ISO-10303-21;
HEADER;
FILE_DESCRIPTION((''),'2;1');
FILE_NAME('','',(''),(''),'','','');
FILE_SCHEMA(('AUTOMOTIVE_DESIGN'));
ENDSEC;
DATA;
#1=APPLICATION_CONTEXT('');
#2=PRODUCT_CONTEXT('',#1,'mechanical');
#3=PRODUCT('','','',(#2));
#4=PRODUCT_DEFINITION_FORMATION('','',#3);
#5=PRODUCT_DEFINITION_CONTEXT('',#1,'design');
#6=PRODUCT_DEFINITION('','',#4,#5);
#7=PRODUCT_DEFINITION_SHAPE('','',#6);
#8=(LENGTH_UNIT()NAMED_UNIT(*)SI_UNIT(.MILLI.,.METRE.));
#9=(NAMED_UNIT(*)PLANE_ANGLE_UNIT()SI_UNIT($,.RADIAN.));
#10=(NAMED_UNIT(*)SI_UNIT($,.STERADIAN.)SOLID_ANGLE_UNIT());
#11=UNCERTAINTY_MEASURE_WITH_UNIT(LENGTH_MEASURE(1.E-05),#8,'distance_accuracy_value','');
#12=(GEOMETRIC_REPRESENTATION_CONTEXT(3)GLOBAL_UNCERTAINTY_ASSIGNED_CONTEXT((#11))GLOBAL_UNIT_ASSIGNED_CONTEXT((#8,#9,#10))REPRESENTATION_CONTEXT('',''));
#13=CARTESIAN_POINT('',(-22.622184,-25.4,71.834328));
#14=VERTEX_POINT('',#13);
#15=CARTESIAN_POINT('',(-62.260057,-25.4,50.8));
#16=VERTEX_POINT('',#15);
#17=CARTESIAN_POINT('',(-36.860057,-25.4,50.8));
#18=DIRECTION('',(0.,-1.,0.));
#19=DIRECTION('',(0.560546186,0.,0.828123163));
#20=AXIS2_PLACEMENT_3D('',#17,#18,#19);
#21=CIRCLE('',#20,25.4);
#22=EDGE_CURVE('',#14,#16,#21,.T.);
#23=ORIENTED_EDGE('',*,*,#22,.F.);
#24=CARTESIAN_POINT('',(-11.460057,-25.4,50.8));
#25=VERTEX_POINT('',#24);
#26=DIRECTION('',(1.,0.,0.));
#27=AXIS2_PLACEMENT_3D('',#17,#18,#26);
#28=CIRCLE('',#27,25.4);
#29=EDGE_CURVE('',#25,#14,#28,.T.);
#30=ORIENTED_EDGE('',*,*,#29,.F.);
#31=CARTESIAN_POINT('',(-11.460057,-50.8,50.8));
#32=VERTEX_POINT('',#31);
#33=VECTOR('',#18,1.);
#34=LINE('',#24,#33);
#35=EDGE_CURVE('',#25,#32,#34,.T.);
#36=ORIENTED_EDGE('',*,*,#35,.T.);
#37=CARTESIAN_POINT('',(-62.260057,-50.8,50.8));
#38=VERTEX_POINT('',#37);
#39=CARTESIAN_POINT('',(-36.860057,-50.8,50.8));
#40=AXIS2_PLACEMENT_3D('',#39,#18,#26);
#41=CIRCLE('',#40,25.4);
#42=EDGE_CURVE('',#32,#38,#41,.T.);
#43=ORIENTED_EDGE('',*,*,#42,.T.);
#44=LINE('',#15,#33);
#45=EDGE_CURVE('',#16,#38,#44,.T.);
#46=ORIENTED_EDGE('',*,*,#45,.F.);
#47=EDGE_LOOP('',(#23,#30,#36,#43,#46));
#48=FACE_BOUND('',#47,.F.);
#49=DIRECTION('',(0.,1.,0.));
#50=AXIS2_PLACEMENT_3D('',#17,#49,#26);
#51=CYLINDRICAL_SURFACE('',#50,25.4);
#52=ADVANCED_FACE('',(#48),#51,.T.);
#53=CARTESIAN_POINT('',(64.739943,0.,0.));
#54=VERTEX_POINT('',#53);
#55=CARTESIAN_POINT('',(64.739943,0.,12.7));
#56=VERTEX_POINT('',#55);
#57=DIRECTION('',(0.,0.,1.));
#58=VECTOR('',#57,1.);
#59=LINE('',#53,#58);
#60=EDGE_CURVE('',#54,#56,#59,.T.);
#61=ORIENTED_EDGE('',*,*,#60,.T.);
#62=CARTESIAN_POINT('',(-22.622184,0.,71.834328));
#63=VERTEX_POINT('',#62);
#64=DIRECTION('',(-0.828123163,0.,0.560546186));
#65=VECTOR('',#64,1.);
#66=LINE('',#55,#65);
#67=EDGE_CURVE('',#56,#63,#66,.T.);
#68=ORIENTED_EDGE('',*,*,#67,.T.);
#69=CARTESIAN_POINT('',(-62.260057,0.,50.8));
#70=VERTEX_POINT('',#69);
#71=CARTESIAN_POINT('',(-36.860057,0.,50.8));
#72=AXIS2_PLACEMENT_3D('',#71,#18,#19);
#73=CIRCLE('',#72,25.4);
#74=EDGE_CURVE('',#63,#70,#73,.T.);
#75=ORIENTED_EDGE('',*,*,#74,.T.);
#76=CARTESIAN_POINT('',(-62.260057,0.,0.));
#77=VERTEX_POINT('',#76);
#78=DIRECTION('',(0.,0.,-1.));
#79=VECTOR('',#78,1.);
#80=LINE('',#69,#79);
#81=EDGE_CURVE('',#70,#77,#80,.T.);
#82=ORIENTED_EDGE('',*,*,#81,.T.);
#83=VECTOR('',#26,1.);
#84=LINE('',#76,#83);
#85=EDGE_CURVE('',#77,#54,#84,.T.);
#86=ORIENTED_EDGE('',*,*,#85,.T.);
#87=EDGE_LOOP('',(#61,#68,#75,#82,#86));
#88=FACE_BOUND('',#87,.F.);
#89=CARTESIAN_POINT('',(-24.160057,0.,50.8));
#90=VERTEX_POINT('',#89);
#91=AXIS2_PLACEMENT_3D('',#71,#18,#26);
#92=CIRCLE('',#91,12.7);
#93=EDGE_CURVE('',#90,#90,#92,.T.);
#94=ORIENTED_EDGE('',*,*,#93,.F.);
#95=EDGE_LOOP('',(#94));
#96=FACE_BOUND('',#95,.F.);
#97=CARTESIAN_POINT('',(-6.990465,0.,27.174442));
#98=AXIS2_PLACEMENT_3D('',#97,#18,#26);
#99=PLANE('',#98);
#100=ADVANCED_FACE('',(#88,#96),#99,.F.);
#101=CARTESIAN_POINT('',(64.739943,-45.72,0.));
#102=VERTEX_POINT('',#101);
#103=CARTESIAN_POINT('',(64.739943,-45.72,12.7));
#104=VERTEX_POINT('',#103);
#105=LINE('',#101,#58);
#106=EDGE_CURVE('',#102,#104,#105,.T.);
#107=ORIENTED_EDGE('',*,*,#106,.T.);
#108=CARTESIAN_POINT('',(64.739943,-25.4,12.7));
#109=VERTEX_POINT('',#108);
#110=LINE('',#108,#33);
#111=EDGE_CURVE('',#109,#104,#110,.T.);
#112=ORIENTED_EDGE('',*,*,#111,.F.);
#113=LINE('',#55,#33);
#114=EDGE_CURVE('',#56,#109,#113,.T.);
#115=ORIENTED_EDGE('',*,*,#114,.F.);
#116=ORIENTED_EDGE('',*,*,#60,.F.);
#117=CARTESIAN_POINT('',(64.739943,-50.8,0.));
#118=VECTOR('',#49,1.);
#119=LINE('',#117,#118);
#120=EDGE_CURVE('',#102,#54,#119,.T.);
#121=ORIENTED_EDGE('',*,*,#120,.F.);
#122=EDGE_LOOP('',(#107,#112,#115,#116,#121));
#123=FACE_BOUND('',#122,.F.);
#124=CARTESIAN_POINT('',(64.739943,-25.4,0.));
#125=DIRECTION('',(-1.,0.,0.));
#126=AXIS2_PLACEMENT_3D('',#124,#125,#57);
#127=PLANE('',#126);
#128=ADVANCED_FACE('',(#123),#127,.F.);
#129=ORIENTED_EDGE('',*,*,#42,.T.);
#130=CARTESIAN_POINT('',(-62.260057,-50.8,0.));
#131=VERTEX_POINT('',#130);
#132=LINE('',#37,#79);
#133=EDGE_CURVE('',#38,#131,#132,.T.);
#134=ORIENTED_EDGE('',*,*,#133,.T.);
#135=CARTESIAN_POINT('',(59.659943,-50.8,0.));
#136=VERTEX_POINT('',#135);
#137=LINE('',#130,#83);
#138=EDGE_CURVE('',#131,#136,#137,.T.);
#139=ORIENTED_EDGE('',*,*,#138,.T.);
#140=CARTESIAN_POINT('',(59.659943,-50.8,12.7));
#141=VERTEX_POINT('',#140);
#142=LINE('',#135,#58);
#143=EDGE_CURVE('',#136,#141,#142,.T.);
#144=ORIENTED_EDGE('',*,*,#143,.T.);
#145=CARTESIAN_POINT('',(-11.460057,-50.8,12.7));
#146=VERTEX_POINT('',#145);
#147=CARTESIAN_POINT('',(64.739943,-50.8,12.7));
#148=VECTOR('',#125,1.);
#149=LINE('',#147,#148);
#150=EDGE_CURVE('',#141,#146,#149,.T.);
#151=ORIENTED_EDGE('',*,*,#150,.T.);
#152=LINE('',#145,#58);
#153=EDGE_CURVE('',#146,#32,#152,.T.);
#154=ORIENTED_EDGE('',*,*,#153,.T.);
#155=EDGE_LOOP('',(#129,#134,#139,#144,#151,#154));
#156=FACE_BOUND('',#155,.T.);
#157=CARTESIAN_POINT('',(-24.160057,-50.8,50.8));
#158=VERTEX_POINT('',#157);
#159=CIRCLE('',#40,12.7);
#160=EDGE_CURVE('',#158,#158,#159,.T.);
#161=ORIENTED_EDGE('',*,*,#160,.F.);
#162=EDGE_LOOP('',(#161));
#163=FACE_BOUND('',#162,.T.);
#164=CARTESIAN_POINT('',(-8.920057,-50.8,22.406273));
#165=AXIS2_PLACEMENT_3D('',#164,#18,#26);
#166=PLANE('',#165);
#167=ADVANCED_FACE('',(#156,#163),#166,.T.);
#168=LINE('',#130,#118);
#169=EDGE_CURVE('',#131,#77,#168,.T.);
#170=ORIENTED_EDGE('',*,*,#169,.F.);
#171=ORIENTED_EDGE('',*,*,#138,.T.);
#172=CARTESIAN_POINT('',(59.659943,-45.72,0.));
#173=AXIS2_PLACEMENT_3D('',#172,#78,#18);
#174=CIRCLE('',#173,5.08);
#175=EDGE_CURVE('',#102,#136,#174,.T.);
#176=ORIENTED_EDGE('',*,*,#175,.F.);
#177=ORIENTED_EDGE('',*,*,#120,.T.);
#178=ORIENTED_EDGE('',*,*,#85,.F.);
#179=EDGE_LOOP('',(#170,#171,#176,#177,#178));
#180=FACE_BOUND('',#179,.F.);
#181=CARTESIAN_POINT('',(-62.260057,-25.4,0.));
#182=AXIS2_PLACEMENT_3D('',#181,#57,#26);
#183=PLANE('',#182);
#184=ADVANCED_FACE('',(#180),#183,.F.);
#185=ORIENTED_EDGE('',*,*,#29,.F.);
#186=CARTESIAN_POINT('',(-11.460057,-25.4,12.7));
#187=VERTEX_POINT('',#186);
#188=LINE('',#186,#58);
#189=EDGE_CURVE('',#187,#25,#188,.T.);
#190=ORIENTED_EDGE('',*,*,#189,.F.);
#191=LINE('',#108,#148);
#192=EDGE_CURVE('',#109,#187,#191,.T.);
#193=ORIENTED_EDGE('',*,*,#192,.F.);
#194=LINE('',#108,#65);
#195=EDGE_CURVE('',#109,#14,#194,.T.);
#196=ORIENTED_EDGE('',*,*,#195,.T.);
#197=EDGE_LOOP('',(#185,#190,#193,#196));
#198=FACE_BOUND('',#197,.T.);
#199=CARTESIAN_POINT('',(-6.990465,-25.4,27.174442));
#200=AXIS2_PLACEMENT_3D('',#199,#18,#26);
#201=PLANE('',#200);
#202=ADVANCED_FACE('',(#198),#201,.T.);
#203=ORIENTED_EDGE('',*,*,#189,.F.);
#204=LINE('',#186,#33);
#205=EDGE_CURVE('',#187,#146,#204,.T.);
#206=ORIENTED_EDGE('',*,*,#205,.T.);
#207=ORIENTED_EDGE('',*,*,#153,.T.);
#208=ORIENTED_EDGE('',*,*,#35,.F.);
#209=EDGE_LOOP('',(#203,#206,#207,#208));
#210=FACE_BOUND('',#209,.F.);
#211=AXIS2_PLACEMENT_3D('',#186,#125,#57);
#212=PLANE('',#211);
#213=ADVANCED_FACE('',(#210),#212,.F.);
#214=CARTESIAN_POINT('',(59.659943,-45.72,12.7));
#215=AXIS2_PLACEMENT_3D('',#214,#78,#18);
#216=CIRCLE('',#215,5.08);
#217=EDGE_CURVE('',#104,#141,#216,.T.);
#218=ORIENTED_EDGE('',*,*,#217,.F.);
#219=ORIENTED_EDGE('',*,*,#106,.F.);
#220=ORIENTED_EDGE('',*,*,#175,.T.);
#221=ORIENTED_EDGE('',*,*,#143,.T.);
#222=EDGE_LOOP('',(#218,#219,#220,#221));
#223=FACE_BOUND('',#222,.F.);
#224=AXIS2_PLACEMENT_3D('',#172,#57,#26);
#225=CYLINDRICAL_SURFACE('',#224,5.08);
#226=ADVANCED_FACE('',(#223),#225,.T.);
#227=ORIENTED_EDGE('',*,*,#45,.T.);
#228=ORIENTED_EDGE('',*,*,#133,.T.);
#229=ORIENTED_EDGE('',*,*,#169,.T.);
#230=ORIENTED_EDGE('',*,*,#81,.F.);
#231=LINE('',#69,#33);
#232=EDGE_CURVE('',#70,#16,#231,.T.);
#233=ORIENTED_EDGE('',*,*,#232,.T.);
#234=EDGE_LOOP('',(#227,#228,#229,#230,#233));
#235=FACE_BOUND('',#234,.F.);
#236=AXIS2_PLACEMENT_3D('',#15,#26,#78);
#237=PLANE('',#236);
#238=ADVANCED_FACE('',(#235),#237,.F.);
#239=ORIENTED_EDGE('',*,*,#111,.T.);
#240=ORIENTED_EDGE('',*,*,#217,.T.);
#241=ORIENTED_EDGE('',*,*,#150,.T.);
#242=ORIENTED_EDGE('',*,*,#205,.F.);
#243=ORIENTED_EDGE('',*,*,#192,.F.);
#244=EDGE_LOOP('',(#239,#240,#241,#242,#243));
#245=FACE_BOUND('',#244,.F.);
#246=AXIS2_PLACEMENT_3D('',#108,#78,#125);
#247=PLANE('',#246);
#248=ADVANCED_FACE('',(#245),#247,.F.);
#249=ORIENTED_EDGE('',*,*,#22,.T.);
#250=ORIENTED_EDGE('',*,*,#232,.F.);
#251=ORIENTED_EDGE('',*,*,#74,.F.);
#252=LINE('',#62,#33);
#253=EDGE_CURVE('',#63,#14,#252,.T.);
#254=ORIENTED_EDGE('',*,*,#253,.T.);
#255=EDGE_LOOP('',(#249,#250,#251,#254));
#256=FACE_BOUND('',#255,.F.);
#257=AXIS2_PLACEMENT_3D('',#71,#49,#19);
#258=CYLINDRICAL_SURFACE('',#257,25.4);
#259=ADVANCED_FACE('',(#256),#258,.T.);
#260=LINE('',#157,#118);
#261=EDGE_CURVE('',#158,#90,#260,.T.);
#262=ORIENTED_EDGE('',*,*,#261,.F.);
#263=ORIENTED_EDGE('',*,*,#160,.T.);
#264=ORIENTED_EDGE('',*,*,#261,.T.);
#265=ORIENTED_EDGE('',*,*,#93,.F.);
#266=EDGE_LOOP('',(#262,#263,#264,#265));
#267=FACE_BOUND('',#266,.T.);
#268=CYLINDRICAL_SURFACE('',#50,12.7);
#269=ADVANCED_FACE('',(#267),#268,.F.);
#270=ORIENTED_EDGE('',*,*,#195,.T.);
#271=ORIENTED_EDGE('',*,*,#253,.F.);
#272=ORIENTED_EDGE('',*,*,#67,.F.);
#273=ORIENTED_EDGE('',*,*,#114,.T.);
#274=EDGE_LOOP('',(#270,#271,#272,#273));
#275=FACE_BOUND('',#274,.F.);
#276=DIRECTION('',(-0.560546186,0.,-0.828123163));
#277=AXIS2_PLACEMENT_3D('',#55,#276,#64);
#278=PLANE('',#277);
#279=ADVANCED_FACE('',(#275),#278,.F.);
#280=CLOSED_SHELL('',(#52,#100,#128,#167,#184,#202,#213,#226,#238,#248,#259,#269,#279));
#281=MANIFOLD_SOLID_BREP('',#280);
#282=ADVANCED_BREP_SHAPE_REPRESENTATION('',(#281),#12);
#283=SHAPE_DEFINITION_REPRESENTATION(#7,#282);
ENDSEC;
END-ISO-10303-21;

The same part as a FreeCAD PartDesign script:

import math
import FreeCAD as App
import Part
import Sketcher

V = App.Vector
Q = App.Units.Quantity


def edges_at(feature, points):
    """Names of the edges that pass closest to the given points."""
    edges = feature.Shape.Edges
    near = lambda p: min(range(len(edges)), key=lambda i: edges[i].distToShape(Part.Vertex(*p))[0])
    return sorted({f"Edge{near(p) + 1}" for p in points})

doc = App.newDocument("Part")
body = doc.addObject("PartDesign::Body", "Body")

# Sketch on XZ plane
sketch1 = body.newObject("Sketcher::SketchObject", "Sketch")
sketch1.AttachmentSupport = (doc.getObject("XZ_Plane"), [""])
sketch1.MapMode = "FlatFace"
sketch1.addGeometry(Part.LineSegment(V(65, 13, 0), V(-23, 72, 0)), False)
sketch1.addGeometry(Part.ArcOfCircle(Part.Circle(V(-37, 51, 0), V(0, 0, 1), 25), math.radians(56), math.radians(180)), False)
sketch1.addGeometry(Part.LineSegment(V(-62, 51, 0), V(-62, 0, 0)), False)
sketch1.addGeometry(Part.LineSegment(V(-62, 0, 0), V(65, 0, 0)), False)
sketch1.addGeometry(Part.LineSegment(V(65, 0, 0), V(65, 13, 0)), False)
sketch1.addGeometry(Part.Circle(V(-37, 51, 0), V(0, 0, 1), 13), False)
sketch1.addConstraint(Sketcher.Constraint("Tangent", 0, 2, 1, 1))
sketch1.addConstraint(Sketcher.Constraint("Tangent", 1, 2, 2, 1))
sketch1.addConstraint(Sketcher.Constraint("Coincident", 2, 2, 3, 1))
sketch1.addConstraint(Sketcher.Constraint("Coincident", 3, 2, 4, 1))
sketch1.addConstraint(Sketcher.Constraint("Coincident", 4, 2, 0, 1))
sketch1.addConstraint(Sketcher.Constraint("Vertical", 2))
sketch1.addConstraint(Sketcher.Constraint("Horizontal", 3))
sketch1.addConstraint(Sketcher.Constraint("Vertical", 4))
sketch1.addConstraint(Sketcher.Constraint("Coincident", 5, 3, 1, 3))
sketch1.addConstraint(Sketcher.Constraint("PointOnObject", 2, 2, -1))
sketch1.addConstraint(Sketcher.Constraint("Diameter", 5, Q("1 in")))
sketch1.addConstraint(Sketcher.Constraint("Radius", 1, Q("1 in")))
sketch1.addConstraint(Sketcher.Constraint("DistanceX", 3, 1, 3, 2, Q("5 in")))
sketch1.addConstraint(Sketcher.Constraint("DistanceY", 2, 2, 2, 1, Q("2 in")))
sketch1.addConstraint(Sketcher.Constraint("DistanceY", 4, 1, 4, 2, Q("0.5 in")))
sketch1.addConstraint(Sketcher.Constraint("DistanceX", 1, 3, -1, 1, Q("36.860057 mm")))
pad1 = body.newObject("PartDesign::Pad", "Pad")
pad1.Profile = sketch1
pad1.Length = Q("1 in")

# Sketch on XZ plane
sketch2 = body.newObject("Sketcher::SketchObject", "Sketch001")
sketch2.AttachmentSupport = (doc.getObject("XZ_Plane"), [""])
sketch2.MapMode = "FlatFace"
sketch2.AttachmentOffset = App.Placement(V(0, 0, 1 * 25.4), App.Rotation())
sketch2.addGeometry(Part.LineSegment(V(65, 0, 0), V(65, 13, 0)), False)
sketch2.addGeometry(Part.LineSegment(V(65, 13, 0), V(-11, 13, 0)), False)
sketch2.addGeometry(Part.LineSegment(V(-11, 13, 0), V(-11, 51, 0)), False)
sketch2.addGeometry(Part.ArcOfCircle(Part.Circle(V(-37, 51, 0), V(0, 0, 1), 25), math.radians(0), math.radians(180)), False)
sketch2.addGeometry(Part.LineSegment(V(-62, 51, 0), V(-62, 0, 0)), False)
sketch2.addGeometry(Part.LineSegment(V(-62, 0, 0), V(65, 0, 0)), False)
sketch2.addGeometry(Part.Circle(V(-37, 51, 0), V(0, 0, 1), 13), False)
sketch2.addConstraint(Sketcher.Constraint("Coincident", 0, 2, 1, 1))
sketch2.addConstraint(Sketcher.Constraint("Coincident", 1, 2, 2, 1))
sketch2.addConstraint(Sketcher.Constraint("Tangent", 2, 2, 3, 1))
sketch2.addConstraint(Sketcher.Constraint("Tangent", 3, 2, 4, 1))
sketch2.addConstraint(Sketcher.Constraint("Coincident", 4, 2, 5, 1))
sketch2.addConstraint(Sketcher.Constraint("Coincident", 5, 2, 0, 1))
sketch2.addConstraint(Sketcher.Constraint("Vertical", 0))
sketch2.addConstraint(Sketcher.Constraint("Horizontal", 1))
sketch2.addConstraint(Sketcher.Constraint("Vertical", 2))
sketch2.addConstraint(Sketcher.Constraint("Vertical", 4))
sketch2.addConstraint(Sketcher.Constraint("Horizontal", 5))
sketch2.addConstraint(Sketcher.Constraint("Coincident", 6, 3, 3, 3))
sketch2.addConstraint(Sketcher.Constraint("PointOnObject", 4, 2, -1))
sketch2.addConstraint(Sketcher.Constraint("Diameter", 6, Q("1 in")))
sketch2.addConstraint(Sketcher.Constraint("Radius", 3, Q("1 in")))
sketch2.addConstraint(Sketcher.Constraint("DistanceX", 1, 2, 1, 1, Q("3 in")))
sketch2.addConstraint(Sketcher.Constraint("DistanceY", 4, 2, 4, 1, Q("2 in")))
sketch2.addConstraint(Sketcher.Constraint("DistanceY", 0, 1, 0, 2, Q("0.5 in")))
sketch2.addConstraint(Sketcher.Constraint("DistanceX", 3, 3, -1, 1, Q("36.860057 mm")))
pad2 = body.newObject("PartDesign::Pad", "Pad001")
pad2.Profile = sketch2
pad2.Length = Q("1 in")

# Sketch on XZ plane
sketch3 = body.newObject("Sketcher::SketchObject", "Sketch002")
sketch3.AttachmentSupport = (doc.getObject("XZ_Plane"), [""])
sketch3.MapMode = "FlatFace"
sketch3.AttachmentOffset = App.Placement(V(0, 0, 1 * 25.4), App.Rotation())
sketch3.addGeometry(Part.LineSegment(V(65, 0, 0), V(65, 13, 0)), False)
sketch3.addGeometry(Part.LineSegment(V(65, 13, 0), V(-11, 13, 0)), False)
sketch3.addGeometry(Part.LineSegment(V(-11, 13, 0), V(-11, 51, 0)), False)
sketch3.addGeometry(Part.ArcOfCircle(Part.Circle(V(-37, 51, 0), V(0, 0, 1), 25), math.radians(0), math.radians(56)), False)
sketch3.addGeometry(Part.ArcOfCircle(Part.Circle(V(-37, 51, 0), V(0, 0, 1), 25), math.radians(56), math.radians(180)), False)
sketch3.addGeometry(Part.LineSegment(V(-62, 51, 0), V(-62, 0, 0)), False)
sketch3.addGeometry(Part.LineSegment(V(-62, 0, 0), V(65, 0, 0)), False)
sketch3.addGeometry(Part.Circle(V(-37, 51, 0), V(0, 0, 1), 13), False)
sketch3.addConstraint(Sketcher.Constraint("Coincident", 0, 2, 1, 1))
sketch3.addConstraint(Sketcher.Constraint("Coincident", 1, 2, 2, 1))
sketch3.addConstraint(Sketcher.Constraint("Tangent", 2, 2, 3, 1))
sketch3.addConstraint(Sketcher.Constraint("Tangent", 3, 2, 4, 1))
sketch3.addConstraint(Sketcher.Constraint("Tangent", 4, 2, 5, 1))
sketch3.addConstraint(Sketcher.Constraint("Coincident", 5, 2, 6, 1))
sketch3.addConstraint(Sketcher.Constraint("Coincident", 6, 2, 0, 1))
sketch3.addConstraint(Sketcher.Constraint("Vertical", 0))
sketch3.addConstraint(Sketcher.Constraint("Horizontal", 1))
sketch3.addConstraint(Sketcher.Constraint("Vertical", 2))
sketch3.addConstraint(Sketcher.Constraint("Vertical", 5))
sketch3.addConstraint(Sketcher.Constraint("Horizontal", 6))
sketch3.addConstraint(Sketcher.Constraint("Coincident", 7, 3, 3, 3))
sketch3.addConstraint(Sketcher.Constraint("Equal", 3, 4))
sketch3.addConstraint(Sketcher.Constraint("PointOnObject", 5, 2, -1))
sketch3.addConstraint(Sketcher.Constraint("Diameter", 7, Q("1 in")))
sketch3.addConstraint(Sketcher.Constraint("Radius", 3, Q("1 in")))
sketch3.addConstraint(Sketcher.Constraint("DistanceX", 1, 2, 1, 1, Q("3 in")))
sketch3.addConstraint(Sketcher.Constraint("DistanceY", 5, 2, 5, 1, Q("2 in")))
sketch3.addConstraint(Sketcher.Constraint("DistanceY", 0, 1, 0, 2, Q("0.5 in")))
sketch3.addConstraint(Sketcher.Constraint("DistanceY", -1, 1, 3, 2, Q("71.834328 mm")))
sketch3.addConstraint(Sketcher.Constraint("DistanceX", 3, 3, -1, 1, Q("36.860057 mm")))
pad3 = body.newObject("PartDesign::Pad", "Pad002")
pad3.Profile = sketch3
pad3.Length = Q("1 in")
doc.recompute()

fillet = body.newObject("PartDesign::Fillet", "Fillet")
fillet.Base = (pad3, edges_at(pad3, [(64.74, -50.8, 6.35)]))
fillet.Radius = Q("0.2 in")

doc.recompute()
